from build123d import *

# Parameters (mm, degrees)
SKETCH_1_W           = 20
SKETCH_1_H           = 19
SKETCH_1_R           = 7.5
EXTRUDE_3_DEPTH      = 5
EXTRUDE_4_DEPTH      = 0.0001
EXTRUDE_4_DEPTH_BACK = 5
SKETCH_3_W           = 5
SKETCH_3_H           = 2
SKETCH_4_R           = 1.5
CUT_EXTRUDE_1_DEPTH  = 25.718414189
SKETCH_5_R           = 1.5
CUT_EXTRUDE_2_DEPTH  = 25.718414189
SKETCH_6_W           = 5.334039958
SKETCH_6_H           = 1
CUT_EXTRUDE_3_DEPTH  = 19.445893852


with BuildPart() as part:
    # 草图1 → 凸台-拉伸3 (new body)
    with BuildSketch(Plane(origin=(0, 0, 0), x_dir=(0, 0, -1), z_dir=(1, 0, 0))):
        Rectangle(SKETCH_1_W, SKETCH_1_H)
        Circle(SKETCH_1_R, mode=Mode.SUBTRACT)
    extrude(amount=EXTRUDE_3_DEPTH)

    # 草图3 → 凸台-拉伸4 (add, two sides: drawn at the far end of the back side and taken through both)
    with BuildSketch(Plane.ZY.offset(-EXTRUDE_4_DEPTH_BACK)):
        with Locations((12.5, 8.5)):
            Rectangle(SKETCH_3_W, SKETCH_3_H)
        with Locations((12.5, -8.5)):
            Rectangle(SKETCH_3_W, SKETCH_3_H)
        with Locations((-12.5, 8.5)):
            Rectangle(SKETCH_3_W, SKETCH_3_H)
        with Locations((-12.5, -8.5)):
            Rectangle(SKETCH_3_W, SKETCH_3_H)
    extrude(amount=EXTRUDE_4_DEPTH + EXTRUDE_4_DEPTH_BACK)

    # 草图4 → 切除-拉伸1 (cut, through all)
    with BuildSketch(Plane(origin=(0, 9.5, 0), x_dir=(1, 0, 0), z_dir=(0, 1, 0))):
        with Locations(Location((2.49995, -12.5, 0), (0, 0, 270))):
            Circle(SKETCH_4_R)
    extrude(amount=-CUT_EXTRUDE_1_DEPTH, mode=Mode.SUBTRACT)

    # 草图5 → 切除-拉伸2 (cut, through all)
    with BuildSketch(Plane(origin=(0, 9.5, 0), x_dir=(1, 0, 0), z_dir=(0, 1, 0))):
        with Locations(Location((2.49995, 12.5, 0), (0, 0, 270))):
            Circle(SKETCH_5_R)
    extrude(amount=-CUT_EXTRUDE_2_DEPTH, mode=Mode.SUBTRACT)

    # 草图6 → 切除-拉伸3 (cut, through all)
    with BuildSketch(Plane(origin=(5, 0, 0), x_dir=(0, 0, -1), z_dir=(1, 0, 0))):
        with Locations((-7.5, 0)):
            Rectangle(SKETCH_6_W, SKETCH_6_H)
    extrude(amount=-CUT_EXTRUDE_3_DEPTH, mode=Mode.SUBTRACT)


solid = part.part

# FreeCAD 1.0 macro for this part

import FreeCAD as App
import Part
import Sketcher


def add_polygon(sketch, points):
    """Adds a closed chain of lines whose ends are joined by coincident constraints."""
    first, n = sketch.GeometryCount, len(points)
    for a, b in zip(points, points[1:] + points[:1]):
        sketch.addGeometry(Part.LineSegment(App.Vector(*a, 0), App.Vector(*b, 0)), False)
    for i in range(n):
        sketch.addConstraint(Sketcher.Constraint("Coincident", first + i, 2, first + (i + 1) % n, 1))

doc = App.newDocument("Part")
body = doc.addObject("PartDesign::Body", "Body")

# Sketch on YZ plane
sketch1 = body.newObject("Sketcher::SketchObject", "Sketch")
sketch1.AttachmentSupport = (doc.getObject("YZ_Plane"), [""])
sketch1.MapMode = "FlatFace"
add_polygon(sketch1, [(9.5, 10), (-9.5, 10), (-9.5, -10), (9.5, -10)])  # lines 0-3
sketch1.addGeometry(Part.Circle(App.Vector(0, 0, 0), App.Vector(0, 0, 1), 7.5), False)  # 4
sketch1.addConstraint(Sketcher.Constraint("Horizontal", 0))
sketch1.addConstraint(Sketcher.Constraint("Vertical", 1))
sketch1.addConstraint(Sketcher.Constraint("Horizontal", 2))
sketch1.addConstraint(Sketcher.Constraint("Vertical", 3))
sketch1.addConstraint(Sketcher.Constraint("Coincident", 4, 3, -1, 1))
sketch1.addConstraint(Sketcher.Constraint("Symmetric", 0, 2, 2, 2, -1, 1))
sketch1.addConstraint(Sketcher.Constraint("Diameter", 4, 15.0))
sketch1.addConstraint(Sketcher.Constraint("DistanceX", 0, 2, 0, 1, 19.0))
sketch1.addConstraint(Sketcher.Constraint("DistanceY", 1, 2, 1, 1, 20.0))
pad1 = body.newObject("PartDesign::Pad", "Pad")
pad1.Profile = sketch1
pad1.Length = 5

# Sketch on YZ plane
sketch2 = body.newObject("Sketcher::SketchObject", "Sketch001")
sketch2.AttachmentSupport = (doc.getObject("YZ_Plane"), [""])
sketch2.MapMode = "FlatFace"
add_polygon(sketch2, [(9.5, 10), (7.5, 10), (7.5, 15), (9.5, 15)])  # lines 0-3
add_polygon(sketch2, [(-7.5, 10), (-9.5, 10), (-9.5, 15), (-7.5, 15)])  # lines 4-7
add_polygon(sketch2, [(9.5, -15), (7.5, -15), (7.5, -10), (9.5, -10)])  # lines 8-11
add_polygon(sketch2, [(-7.5, -15), (-9.5, -15), (-9.5, -10), (-7.5, -10)])  # lines 12-15
sketch2.addConstraint(Sketcher.Constraint("Horizontal", 0))
sketch2.addConstraint(Sketcher.Constraint("Vertical", 1))
sketch2.addConstraint(Sketcher.Constraint("Horizontal", 2))
sketch2.addConstraint(Sketcher.Constraint("Vertical", 3))
sketch2.addConstraint(Sketcher.Constraint("Horizontal", 4))
sketch2.addConstraint(Sketcher.Constraint("Vertical", 5))
sketch2.addConstraint(Sketcher.Constraint("Horizontal", 6))
sketch2.addConstraint(Sketcher.Constraint("Vertical", 7))
sketch2.addConstraint(Sketcher.Constraint("Horizontal", 8))
sketch2.addConstraint(Sketcher.Constraint("Vertical", 9))
sketch2.addConstraint(Sketcher.Constraint("Horizontal", 10))
sketch2.addConstraint(Sketcher.Constraint("Vertical", 11))
sketch2.addConstraint(Sketcher.Constraint("Horizontal", 12))
sketch2.addConstraint(Sketcher.Constraint("Vertical", 13))
sketch2.addConstraint(Sketcher.Constraint("Horizontal", 14))
sketch2.addConstraint(Sketcher.Constraint("Vertical", 15))
sketch2.addConstraint(Sketcher.Constraint("Symmetric", 6, 2, 8, 2, -1, 1))
sketch2.addConstraint(Sketcher.Constraint("Symmetric", 4, 2, 10, 2, -1, 1))
sketch2.addConstraint(Sketcher.Constraint("Symmetric", 2, 2, 12, 2, -1, 1))
sketch2.addConstraint(Sketcher.Constraint("Symmetric", 0, 2, 14, 2, -1, 1))
sketch2.addConstraint(Sketcher.Constraint("Symmetric", 3, 2, 4, 2, -2))
sketch2.addConstraint(Sketcher.Constraint("Symmetric", 1, 2, 6, 2, -2))
sketch2.addConstraint(Sketcher.Constraint("DistanceX", 0, 2, 0, 1, 2.0))
sketch2.addConstraint(Sketcher.Constraint("DistanceY", 1, 1, 1, 2, 5.0))
sketch2.addConstraint(Sketcher.Constraint("DistanceY", -1, 1, 0, 2, 10.0))
sketch2.addConstraint(Sketcher.Constraint("DistanceX", 4, 2, 0, 2, 17.0))
pad2 = body.newObject("PartDesign::Pad", "Pad001")
pad2.Profile = sketch2
pad2.Type = "TwoLengths"
pad2.Length = 0.0001
pad2.Length2 = 5
pad2.Reversed = True

# Sketch on XZ plane
sketch3 = body.newObject("Sketcher::SketchObject", "Sketch002")
sketch3.AttachmentSupport = (doc.getObject("XZ_Plane"), [""])
sketch3.MapMode = "FlatFace"
sketch3.AttachmentOffset = App.Placement(App.Vector(0, 0, -9.5), App.Rotation())
sketch3.addGeometry(Part.Circle(App.Vector(2.49995, 12.5, 0), App.Vector(0, 0, 1), 1.5), False)
sketch3.addConstraint(Sketcher.Constraint("Diameter", 0, 3.0))
sketch3.addConstraint(Sketcher.Constraint("DistanceY", -1, 1, 0, 3, 12.5))
sketch3.addConstraint(Sketcher.Constraint("DistanceX", -1, 1, 0, 3, 2.49995))
pocket1 = body.newObject("PartDesign::Pocket", "Pocket")
pocket1.Profile = sketch3
pocket1.Type = "ThroughAll"
pocket1.Reversed = True

# Sketch on XZ plane
sketch4 = body.newObject("Sketcher::SketchObject", "Sketch003")
sketch4.AttachmentSupport = (doc.getObject("XZ_Plane"), [""])
sketch4.MapMode = "FlatFace"
sketch4.AttachmentOffset = App.Placement(App.Vector(0, 0, -9.5), App.Rotation())
sketch4.addGeometry(Part.Circle(App.Vector(2.49995, -12.5, 0), App.Vector(0, 0, 1), 1.5), False)
sketch4.addConstraint(Sketcher.Constraint("Diameter", 0, 3.0))
sketch4.addConstraint(Sketcher.Constraint("DistanceY", 0, 3, -1, 1, 12.5))
sketch4.addConstraint(Sketcher.Constraint("DistanceX", -1, 1, 0, 3, 2.49995))
pocket2 = body.newObject("PartDesign::Pocket", "Pocket001")
pocket2.Profile = sketch4
pocket2.Type = "ThroughAll"
pocket2.Reversed = True

# Sketch on YZ plane
sketch5 = body.newObject("Sketcher::SketchObject", "Sketch004")
sketch5.AttachmentSupport = (doc.getObject("YZ_Plane"), [""])
sketch5.MapMode = "FlatFace"
sketch5.AttachmentOffset = App.Placement(App.Vector(0, 0, 5), App.Rotation())
add_polygon(sketch5, [(0.5, 10.16702), (-0.5, 10.16702), (-0.5, 4.83298), (0.5, 4.83298)])  # lines 0-3
sketch5.addConstraint(Sketcher.Constraint("Horizontal", 0))
sketch5.addConstraint(Sketcher.Constraint("Vertical", 1))
sketch5.addConstraint(Sketcher.Constraint("Horizontal", 2))
sketch5.addConstraint(Sketcher.Constraint("Vertical", 3))
sketch5.addConstraint(Sketcher.Constraint("DistanceX", 0, 2, 0, 1, 1.0))
sketch5.addConstraint(Sketcher.Constraint("DistanceX", 0, 2, -1, 1, 0.5))
sketch5.addConstraint(Sketcher.Constraint("DistanceY", 1, 2, 1, 1, 5.33404))
sketch5.addConstraint(Sketcher.Constraint("DistanceY", -1, 1, 0, 2, 10.16702))
pocket3 = body.newObject("PartDesign::Pocket", "Pocket002")
pocket3.Profile = sketch5
pocket3.Type = "ThroughAll"

doc.recompute()
